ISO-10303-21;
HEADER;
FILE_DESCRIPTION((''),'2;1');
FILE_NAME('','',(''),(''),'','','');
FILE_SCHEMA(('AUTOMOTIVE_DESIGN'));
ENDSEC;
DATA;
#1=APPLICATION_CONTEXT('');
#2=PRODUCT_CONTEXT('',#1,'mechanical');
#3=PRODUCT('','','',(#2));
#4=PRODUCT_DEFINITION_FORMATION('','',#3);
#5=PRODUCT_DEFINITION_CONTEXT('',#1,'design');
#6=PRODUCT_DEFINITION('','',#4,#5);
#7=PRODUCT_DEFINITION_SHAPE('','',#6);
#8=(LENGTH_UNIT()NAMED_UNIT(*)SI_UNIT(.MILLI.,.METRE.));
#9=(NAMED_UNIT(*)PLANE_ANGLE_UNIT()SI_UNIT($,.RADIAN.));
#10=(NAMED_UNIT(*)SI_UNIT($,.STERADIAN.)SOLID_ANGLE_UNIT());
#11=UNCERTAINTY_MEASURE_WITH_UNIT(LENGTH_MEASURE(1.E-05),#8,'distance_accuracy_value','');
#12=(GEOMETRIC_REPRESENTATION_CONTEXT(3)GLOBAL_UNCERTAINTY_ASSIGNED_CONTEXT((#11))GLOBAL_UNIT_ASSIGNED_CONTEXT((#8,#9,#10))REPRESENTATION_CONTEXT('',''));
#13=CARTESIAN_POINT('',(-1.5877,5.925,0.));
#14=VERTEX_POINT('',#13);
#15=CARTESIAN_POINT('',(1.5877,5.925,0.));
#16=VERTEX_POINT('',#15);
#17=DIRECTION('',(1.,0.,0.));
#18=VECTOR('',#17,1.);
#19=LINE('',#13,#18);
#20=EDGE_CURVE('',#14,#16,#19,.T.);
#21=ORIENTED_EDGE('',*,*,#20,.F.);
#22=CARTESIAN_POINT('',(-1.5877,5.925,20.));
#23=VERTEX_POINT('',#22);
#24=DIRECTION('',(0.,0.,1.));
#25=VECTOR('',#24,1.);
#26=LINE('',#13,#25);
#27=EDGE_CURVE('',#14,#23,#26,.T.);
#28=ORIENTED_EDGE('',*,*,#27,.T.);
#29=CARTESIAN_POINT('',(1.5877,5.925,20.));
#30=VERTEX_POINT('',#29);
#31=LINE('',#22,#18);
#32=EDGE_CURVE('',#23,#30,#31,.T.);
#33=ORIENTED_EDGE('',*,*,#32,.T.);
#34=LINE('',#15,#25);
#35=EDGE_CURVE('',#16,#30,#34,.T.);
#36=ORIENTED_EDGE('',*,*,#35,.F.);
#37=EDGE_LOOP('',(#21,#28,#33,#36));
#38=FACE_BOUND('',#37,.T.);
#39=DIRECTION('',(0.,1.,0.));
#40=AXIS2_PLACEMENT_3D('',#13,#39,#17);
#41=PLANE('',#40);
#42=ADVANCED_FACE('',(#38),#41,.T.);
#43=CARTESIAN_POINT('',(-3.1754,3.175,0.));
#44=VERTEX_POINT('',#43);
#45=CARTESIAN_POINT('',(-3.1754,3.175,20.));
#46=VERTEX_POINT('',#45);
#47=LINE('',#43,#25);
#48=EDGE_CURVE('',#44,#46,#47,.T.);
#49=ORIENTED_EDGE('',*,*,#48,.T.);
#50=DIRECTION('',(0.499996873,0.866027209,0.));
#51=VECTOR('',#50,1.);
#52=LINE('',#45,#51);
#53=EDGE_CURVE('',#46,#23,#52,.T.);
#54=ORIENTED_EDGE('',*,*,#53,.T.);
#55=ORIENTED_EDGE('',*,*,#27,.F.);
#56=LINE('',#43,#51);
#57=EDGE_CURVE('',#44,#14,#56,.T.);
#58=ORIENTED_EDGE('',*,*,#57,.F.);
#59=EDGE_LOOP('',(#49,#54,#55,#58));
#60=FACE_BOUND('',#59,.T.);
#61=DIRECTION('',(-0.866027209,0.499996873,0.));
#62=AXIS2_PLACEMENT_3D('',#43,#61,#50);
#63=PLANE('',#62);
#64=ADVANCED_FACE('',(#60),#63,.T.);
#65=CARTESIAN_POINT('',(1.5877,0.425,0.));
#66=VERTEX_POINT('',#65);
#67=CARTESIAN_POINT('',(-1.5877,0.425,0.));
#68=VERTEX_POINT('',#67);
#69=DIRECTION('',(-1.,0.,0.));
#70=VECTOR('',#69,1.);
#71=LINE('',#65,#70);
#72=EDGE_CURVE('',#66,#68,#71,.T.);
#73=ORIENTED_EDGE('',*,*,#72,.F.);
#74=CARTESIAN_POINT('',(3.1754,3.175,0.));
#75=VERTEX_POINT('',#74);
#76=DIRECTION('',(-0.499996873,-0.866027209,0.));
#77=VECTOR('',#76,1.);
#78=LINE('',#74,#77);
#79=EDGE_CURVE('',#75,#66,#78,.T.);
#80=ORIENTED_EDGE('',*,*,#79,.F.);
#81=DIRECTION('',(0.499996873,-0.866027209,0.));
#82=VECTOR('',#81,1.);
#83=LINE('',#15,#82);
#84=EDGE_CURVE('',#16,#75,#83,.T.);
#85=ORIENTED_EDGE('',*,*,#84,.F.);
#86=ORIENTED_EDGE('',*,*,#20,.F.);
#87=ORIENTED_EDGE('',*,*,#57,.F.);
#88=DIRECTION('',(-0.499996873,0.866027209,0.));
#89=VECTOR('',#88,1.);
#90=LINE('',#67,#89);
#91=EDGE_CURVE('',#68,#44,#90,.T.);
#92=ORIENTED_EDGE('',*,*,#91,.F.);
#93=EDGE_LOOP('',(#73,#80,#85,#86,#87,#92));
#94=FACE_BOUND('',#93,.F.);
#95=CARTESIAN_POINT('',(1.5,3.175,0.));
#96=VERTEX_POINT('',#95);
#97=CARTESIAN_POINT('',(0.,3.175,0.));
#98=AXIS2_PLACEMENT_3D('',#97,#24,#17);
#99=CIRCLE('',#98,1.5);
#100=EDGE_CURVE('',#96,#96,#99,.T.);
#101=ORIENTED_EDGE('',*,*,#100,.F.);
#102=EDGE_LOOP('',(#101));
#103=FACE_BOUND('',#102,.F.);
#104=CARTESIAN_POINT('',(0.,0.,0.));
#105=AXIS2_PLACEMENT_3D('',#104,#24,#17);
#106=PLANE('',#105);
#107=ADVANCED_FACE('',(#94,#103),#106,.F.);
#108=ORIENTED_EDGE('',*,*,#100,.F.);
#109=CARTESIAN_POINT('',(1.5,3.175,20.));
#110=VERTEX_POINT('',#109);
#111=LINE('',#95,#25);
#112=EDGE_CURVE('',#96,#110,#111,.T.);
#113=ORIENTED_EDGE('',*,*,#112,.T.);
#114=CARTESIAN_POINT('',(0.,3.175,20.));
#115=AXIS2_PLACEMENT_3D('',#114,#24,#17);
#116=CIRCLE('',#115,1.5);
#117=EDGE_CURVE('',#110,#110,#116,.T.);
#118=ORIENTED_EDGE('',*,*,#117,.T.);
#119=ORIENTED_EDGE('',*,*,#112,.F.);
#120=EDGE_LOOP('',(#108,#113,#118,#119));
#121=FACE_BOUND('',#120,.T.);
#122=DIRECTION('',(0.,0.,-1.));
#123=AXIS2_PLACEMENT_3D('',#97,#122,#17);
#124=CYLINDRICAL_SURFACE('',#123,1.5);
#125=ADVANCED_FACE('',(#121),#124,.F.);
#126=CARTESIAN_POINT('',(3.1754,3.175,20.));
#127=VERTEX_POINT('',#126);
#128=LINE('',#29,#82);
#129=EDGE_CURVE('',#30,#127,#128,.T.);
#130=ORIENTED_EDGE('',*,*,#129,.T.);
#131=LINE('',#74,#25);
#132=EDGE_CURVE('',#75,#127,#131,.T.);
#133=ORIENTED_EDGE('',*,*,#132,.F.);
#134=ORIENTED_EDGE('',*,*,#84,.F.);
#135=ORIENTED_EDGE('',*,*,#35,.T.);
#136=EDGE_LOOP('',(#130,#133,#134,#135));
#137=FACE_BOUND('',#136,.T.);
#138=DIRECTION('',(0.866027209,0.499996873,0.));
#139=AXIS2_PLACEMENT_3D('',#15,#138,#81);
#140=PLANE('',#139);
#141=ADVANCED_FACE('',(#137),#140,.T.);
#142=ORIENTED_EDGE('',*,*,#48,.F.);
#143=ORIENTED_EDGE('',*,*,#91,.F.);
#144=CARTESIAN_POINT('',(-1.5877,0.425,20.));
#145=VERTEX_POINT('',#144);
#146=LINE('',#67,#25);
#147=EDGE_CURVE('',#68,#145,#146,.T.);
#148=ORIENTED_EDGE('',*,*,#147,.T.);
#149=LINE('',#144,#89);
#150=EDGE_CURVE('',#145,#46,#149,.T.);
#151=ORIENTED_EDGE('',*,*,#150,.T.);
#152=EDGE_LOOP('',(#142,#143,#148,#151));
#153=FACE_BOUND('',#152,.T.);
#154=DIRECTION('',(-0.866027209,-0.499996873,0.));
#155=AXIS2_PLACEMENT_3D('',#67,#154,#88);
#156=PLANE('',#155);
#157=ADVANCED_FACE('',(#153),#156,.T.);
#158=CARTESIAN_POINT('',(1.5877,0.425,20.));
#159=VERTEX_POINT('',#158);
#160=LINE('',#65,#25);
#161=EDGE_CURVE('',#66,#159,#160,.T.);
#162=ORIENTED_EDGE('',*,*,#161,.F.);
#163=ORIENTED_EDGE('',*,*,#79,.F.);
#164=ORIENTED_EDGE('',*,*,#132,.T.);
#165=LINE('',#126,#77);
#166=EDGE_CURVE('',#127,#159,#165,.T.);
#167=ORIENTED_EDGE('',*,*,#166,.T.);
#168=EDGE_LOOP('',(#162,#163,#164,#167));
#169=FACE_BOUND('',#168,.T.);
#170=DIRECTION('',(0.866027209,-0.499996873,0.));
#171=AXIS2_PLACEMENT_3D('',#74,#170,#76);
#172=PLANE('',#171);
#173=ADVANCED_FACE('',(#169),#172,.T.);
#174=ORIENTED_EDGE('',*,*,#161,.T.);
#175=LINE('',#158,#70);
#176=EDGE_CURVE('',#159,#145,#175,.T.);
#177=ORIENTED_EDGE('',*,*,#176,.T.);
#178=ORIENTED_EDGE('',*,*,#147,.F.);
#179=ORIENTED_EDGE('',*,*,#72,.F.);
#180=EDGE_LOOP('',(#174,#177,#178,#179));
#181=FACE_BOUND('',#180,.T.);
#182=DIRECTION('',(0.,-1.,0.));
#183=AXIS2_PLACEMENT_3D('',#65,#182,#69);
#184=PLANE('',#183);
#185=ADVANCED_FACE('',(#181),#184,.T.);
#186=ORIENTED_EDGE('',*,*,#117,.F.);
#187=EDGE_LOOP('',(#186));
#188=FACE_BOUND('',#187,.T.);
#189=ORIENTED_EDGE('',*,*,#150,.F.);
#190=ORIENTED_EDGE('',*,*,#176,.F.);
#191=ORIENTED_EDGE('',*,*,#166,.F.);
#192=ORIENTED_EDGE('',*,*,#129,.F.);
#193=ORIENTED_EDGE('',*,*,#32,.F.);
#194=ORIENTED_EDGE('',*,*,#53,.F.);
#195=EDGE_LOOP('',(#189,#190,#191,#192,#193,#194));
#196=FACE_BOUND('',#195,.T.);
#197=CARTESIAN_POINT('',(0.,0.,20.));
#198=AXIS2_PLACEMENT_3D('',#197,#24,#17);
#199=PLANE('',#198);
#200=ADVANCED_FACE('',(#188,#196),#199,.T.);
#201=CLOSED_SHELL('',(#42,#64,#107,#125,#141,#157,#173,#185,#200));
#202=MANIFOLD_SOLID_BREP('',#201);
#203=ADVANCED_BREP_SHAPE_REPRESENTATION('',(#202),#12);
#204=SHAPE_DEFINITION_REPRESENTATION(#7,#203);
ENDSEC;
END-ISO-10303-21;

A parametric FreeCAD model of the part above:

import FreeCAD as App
import Part
import Sketcher
Q = App.Units.Quantity

doc = App.newDocument("Part")
params = doc.addObject("Spreadsheet::Sheet", "Params")
for row, (alias, value) in enumerate([
    ("sketch1_diameter", "3 mm"),
    ("pad1_length", "20 mm"),
], start=1):
    params.set(f"A{row}", alias)
    params.set(f"B{row}", "=" + value)
    params.setAlias(f"B{row}", alias)

body = doc.addObject("PartDesign::Body", "Body")

# Sketch on XY plane
sketch1 = body.newObject("Sketcher::SketchObject", "Sketch")
sketch1.AttachmentSupport = (doc.getObject("XY_Plane"), [""])
sketch1.MapMode = "FlatFace"
sketch1.addGeometry([
    Part.LineSegment(App.Vector(-1.6, 0.4, 0), App.Vector(1.6, 0.4, 0)),  # 0
    Part.LineSegment(App.Vector(1.6, 0.4, 0), App.Vector(3.2, 3.2, 0)),  # 1
    Part.LineSegment(App.Vector(3.2, 3.2, 0), App.Vector(1.6, 5.9, 0)),  # 2
    Part.LineSegment(App.Vector(1.6, 5.9, 0), App.Vector(-1.6, 5.9, 0)),  # 3
    Part.LineSegment(App.Vector(-1.6, 5.9, 0), App.Vector(-3.2, 3.2, 0)),  # 4
    Part.LineSegment(App.Vector(-3.2, 3.2, 0), App.Vector(-1.6, 0.4, 0)),  # 5
    Part.Circle(App.Vector(0, 3.2, 0), App.Vector(0, 0, 1), 1.5),  # 6
], False)
sketch1.addConstraint([
    Sketcher.Constraint("Coincident", 0, 2, 1, 1),
    Sketcher.Constraint("Coincident", 1, 2, 2, 1),
    Sketcher.Constraint("Coincident", 2, 2, 3, 1),
    Sketcher.Constraint("Coincident", 3, 2, 4, 1),
    Sketcher.Constraint("Coincident", 4, 2, 5, 1),
    Sketcher.Constraint("Coincident", 5, 2, 0, 1),
    Sketcher.Constraint("Horizontal", 0),
    Sketcher.Constraint("Horizontal", 3),
    Sketcher.Constraint("Symmetric", 1, 2, 4, 2, -2),
    Sketcher.Constraint("PointOnObject", 6, 3, -2),
    Sketcher.Constraint("Parallel", 1, 4),
    Sketcher.Constraint("Parallel", 2, 5),
    Sketcher.Constraint("Horizontal", 6, 3, 1, 2),
    Sketcher.Constraint("Vertical", 0, 2, 2, 2),
    Sketcher.Constraint("Vertical", 3, 2, 5, 2),
    Sketcher.Constraint("Diameter", 6, Q("3 mm")),
    Sketcher.Constraint("DistanceY", 0, 2, 2, 2, Q("5.5 mm")),
    Sketcher.Constraint("Angle", 1, Q("60.0002 deg")),
    Sketcher.Constraint("DistanceX", 0, 1, 0, 2, Q("3.1754 mm")),
    Sketcher.Constraint("DistanceY", -1, 1, 6, 3, Q("3.175 mm")),
])
sketch1.setExpression("Constraints[15]", "Params.sketch1_diameter")
pad1 = body.newObject("PartDesign::Pad", "Pad")
pad1.Profile = sketch1
pad1.setExpression("Length", "Params.pad1_length")

doc.recompute()
